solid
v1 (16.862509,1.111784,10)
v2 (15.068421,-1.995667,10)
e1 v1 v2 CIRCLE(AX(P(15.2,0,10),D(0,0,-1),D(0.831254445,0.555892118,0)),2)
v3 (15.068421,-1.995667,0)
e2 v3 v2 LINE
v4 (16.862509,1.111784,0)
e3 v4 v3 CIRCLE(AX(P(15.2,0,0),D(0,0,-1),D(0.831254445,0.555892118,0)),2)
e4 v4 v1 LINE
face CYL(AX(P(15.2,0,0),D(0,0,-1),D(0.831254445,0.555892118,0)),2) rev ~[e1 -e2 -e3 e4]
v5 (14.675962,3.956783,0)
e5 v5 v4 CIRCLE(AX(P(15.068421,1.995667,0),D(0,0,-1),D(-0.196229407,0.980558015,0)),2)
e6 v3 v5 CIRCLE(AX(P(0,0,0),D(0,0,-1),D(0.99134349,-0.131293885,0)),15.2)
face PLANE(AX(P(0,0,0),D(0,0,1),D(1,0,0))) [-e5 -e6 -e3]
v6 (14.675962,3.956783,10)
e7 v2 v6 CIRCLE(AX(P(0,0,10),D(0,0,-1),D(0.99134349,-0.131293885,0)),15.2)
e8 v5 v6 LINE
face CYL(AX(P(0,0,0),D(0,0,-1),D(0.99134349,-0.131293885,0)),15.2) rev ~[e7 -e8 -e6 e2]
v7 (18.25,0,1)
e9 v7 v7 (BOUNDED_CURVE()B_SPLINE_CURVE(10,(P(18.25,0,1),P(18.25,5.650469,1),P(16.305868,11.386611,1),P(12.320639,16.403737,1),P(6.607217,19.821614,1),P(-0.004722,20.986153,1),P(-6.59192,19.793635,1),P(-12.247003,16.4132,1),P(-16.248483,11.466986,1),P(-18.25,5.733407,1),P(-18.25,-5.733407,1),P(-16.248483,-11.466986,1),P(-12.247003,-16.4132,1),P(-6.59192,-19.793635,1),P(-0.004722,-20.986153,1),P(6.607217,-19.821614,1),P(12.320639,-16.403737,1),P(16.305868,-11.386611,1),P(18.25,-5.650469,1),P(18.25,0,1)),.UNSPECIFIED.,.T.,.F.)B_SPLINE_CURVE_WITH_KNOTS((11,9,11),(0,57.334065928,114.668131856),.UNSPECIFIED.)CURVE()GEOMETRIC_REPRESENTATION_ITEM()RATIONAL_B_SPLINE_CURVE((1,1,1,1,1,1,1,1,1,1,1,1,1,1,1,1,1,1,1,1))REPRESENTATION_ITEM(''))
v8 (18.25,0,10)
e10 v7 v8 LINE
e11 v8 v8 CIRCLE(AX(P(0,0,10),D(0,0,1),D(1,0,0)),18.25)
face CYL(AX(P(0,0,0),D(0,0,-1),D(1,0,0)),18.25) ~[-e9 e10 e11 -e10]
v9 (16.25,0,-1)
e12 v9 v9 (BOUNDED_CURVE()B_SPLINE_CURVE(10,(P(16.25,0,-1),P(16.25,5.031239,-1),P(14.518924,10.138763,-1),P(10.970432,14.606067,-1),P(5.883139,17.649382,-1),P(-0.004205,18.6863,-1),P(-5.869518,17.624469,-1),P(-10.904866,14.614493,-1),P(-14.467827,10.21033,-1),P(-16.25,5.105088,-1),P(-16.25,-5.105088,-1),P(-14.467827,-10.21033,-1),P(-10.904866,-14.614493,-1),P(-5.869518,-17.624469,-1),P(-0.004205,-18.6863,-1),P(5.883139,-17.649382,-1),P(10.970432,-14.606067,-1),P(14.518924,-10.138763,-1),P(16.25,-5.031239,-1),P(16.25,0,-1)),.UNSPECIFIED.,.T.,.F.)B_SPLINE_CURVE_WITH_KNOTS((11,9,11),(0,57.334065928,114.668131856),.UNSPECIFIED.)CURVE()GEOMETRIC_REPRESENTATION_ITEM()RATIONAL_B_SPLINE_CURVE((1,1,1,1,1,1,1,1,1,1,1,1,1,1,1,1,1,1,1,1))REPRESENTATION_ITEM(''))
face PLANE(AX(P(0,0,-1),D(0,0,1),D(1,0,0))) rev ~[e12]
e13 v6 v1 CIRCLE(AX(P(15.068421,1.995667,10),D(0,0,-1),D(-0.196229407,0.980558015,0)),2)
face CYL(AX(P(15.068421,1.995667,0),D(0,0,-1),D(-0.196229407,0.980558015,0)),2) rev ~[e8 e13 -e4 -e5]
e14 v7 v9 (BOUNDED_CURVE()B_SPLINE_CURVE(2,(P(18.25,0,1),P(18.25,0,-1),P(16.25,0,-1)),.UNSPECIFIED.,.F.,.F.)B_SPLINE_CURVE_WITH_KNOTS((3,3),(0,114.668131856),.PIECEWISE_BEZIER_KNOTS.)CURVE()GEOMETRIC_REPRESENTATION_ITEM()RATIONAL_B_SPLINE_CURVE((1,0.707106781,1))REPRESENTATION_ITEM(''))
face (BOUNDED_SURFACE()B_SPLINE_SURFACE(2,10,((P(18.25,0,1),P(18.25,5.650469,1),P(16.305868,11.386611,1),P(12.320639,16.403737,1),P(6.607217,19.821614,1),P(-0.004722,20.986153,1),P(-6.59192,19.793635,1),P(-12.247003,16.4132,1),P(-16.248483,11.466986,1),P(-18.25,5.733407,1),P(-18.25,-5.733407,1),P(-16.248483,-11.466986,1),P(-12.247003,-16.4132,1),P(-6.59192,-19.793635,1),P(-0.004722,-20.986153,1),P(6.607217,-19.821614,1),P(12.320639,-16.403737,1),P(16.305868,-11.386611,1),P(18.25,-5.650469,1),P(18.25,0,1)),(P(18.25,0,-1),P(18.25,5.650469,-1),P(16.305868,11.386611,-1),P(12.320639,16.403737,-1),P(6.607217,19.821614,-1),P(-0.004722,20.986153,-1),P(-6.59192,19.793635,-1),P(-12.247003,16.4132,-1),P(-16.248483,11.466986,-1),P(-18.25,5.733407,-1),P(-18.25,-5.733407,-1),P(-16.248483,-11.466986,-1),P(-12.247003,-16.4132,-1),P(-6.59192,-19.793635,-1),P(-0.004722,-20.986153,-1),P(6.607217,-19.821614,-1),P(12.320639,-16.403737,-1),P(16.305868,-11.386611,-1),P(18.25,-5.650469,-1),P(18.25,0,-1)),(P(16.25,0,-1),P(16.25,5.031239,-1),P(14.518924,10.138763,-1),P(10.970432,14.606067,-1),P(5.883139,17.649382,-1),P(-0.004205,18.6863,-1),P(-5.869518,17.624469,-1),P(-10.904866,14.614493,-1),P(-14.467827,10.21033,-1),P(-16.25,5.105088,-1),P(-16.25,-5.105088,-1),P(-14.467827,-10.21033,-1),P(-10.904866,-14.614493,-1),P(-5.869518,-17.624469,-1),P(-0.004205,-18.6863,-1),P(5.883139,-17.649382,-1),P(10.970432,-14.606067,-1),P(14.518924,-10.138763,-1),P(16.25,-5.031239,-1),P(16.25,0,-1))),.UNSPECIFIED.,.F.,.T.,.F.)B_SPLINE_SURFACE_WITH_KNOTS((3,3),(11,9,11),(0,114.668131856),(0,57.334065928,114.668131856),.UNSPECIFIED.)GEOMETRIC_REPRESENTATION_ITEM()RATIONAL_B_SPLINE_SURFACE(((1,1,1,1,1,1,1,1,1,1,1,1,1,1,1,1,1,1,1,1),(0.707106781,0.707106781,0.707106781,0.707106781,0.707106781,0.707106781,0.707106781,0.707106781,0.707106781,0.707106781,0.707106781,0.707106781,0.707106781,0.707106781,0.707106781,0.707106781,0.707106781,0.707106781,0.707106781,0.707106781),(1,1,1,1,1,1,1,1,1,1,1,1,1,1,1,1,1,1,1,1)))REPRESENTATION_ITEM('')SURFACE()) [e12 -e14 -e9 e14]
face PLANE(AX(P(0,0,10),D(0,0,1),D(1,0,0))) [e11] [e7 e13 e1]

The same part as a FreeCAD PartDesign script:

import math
import FreeCAD as App
import Part
import Sketcher


def edges_at(feature, points):
    """Names of the edges that pass closest to the given points."""
    edges = feature.Shape.Edges
    near = lambda p: min(range(len(edges)), key=lambda i: edges[i].distToShape(Part.Vertex(*p))[0])
    return sorted({f"Edge{near(p) + 1}" for p in points})

doc = App.newDocument("Part")
params = doc.addObject("Spreadsheet::Sheet", "Params")
for row, (alias, value) in enumerate([
    ("sketch1_diameter", "36.5 mm"),
    ("pad1_length", "1 mm"),
    ("sketch2_radius", "2 mm"),
    ("sketch2_diameter", "36.5 mm"),
    ("sketch2_radius2", "15.2 mm"),
    ("pad2_length", "10 mm"),
    ("fillet_radius", "2 mm"),
], start=1):
    params.set(f"A{row}", alias)
    params.set(f"B{row}", "=" + value)
    params.setAlias(f"B{row}", alias)

body = doc.addObject("PartDesign::Body", "Body")

# Sketch on XY plane
sketch1 = body.newObject("Sketcher::SketchObject", "Sketch")
sketch1.AttachmentSupport = (doc.getObject("XY_Plane"), [""])
sketch1.MapMode = "FlatFace"
sketch1.addGeometry(Part.Circle(App.Vector(0, 0, 0), App.Vector(0, 0, 1), 18.25), False)
sketch1.addConstraint([
    Sketcher.Constraint("Coincident", 0, 3, -1, 1),
    Sketcher.Constraint("Diameter", 0, 36.5),
])
sketch1.setExpression("Constraints[1]", "Params.sketch1_diameter")
pad1 = body.newObject("PartDesign::Pad", "Pad")
pad1.Profile = sketch1
pad1.setExpression("Length", "Params.pad1_length")
pad1.Reversed = True

# Sketch on XY plane
sketch2 = body.newObject("Sketcher::SketchObject", "Sketch001")
sketch2.AttachmentSupport = (doc.getObject("XY_Plane"), [""])
sketch2.MapMode = "FlatFace"
sketch2.addGeometry([
    Part.Circle(App.Vector(0, 0, 0), App.Vector(0, 0, 1), 18.25),
    Part.ArcOfCircle(Part.Circle(App.Vector(15.2, 0, 0), App.Vector(0, 0, 1), 2), math.radians(-93.772184), math.radians(33.772184)),
    Part.ArcOfCircle(Part.Circle(App.Vector(0, 0, 0), App.Vector(0, 0, 1), 15.2), math.radians(15.088735), math.radians(352.455633)),
    Part.ArcOfCircle(Part.Circle(App.Vector(15.068421, 1.995667, 0), App.Vector(0, 0, 1), 2), math.radians(-26.227816), math.radians(101.316551)),
], False)
sketch2.addConstraint([
    Sketcher.Constraint("Coincident", 1, 1, 2, 2),
    Sketcher.Constraint("Coincident", 2, 1, 3, 2),
    Sketcher.Constraint("Coincident", 3, 1, 1, 2),
    Sketcher.Constraint("Coincident", 0, 3, -1, 1),
    Sketcher.Constraint("Coincident", 2, 3, -1, 1),
    Sketcher.Constraint("Equal", 1, 3),
    Sketcher.Constraint("PointOnObject", 1, 3, -1),
    Sketcher.Constraint("Vertical", 3, 3, 1, 1),
    Sketcher.Constraint("Radius", 1, 2.0),
    Sketcher.Constraint("Diameter", 0, 36.5),
    Sketcher.Constraint("Radius", 2, 15.2),
    Sketcher.Constraint("DistanceX", -1, 1, 1, 3, 15.2),
    Sketcher.Constraint("DistanceY", 3, 1, 2, 1, 2.844999),
])
sketch2.setExpression("Constraints[8]", "Params.sketch2_radius")
sketch2.setExpression("Constraints[9]", "Params.sketch2_diameter")
sketch2.setExpression("Constraints[10]", "Params.sketch2_radius2")
pad2 = body.newObject("PartDesign::Pad", "Pad001")
pad2.Profile = sketch2
pad2.setExpression("Length", "Params.pad2_length")
doc.recompute()

fillet = body.newObject("PartDesign::Fillet", "Fillet")
fillet.Base = (pad2, edges_at(pad2, [(-18.25, 0, -1)]))
fillet.setExpression("Radius", "Params.fillet_radius")

doc.recompute()
